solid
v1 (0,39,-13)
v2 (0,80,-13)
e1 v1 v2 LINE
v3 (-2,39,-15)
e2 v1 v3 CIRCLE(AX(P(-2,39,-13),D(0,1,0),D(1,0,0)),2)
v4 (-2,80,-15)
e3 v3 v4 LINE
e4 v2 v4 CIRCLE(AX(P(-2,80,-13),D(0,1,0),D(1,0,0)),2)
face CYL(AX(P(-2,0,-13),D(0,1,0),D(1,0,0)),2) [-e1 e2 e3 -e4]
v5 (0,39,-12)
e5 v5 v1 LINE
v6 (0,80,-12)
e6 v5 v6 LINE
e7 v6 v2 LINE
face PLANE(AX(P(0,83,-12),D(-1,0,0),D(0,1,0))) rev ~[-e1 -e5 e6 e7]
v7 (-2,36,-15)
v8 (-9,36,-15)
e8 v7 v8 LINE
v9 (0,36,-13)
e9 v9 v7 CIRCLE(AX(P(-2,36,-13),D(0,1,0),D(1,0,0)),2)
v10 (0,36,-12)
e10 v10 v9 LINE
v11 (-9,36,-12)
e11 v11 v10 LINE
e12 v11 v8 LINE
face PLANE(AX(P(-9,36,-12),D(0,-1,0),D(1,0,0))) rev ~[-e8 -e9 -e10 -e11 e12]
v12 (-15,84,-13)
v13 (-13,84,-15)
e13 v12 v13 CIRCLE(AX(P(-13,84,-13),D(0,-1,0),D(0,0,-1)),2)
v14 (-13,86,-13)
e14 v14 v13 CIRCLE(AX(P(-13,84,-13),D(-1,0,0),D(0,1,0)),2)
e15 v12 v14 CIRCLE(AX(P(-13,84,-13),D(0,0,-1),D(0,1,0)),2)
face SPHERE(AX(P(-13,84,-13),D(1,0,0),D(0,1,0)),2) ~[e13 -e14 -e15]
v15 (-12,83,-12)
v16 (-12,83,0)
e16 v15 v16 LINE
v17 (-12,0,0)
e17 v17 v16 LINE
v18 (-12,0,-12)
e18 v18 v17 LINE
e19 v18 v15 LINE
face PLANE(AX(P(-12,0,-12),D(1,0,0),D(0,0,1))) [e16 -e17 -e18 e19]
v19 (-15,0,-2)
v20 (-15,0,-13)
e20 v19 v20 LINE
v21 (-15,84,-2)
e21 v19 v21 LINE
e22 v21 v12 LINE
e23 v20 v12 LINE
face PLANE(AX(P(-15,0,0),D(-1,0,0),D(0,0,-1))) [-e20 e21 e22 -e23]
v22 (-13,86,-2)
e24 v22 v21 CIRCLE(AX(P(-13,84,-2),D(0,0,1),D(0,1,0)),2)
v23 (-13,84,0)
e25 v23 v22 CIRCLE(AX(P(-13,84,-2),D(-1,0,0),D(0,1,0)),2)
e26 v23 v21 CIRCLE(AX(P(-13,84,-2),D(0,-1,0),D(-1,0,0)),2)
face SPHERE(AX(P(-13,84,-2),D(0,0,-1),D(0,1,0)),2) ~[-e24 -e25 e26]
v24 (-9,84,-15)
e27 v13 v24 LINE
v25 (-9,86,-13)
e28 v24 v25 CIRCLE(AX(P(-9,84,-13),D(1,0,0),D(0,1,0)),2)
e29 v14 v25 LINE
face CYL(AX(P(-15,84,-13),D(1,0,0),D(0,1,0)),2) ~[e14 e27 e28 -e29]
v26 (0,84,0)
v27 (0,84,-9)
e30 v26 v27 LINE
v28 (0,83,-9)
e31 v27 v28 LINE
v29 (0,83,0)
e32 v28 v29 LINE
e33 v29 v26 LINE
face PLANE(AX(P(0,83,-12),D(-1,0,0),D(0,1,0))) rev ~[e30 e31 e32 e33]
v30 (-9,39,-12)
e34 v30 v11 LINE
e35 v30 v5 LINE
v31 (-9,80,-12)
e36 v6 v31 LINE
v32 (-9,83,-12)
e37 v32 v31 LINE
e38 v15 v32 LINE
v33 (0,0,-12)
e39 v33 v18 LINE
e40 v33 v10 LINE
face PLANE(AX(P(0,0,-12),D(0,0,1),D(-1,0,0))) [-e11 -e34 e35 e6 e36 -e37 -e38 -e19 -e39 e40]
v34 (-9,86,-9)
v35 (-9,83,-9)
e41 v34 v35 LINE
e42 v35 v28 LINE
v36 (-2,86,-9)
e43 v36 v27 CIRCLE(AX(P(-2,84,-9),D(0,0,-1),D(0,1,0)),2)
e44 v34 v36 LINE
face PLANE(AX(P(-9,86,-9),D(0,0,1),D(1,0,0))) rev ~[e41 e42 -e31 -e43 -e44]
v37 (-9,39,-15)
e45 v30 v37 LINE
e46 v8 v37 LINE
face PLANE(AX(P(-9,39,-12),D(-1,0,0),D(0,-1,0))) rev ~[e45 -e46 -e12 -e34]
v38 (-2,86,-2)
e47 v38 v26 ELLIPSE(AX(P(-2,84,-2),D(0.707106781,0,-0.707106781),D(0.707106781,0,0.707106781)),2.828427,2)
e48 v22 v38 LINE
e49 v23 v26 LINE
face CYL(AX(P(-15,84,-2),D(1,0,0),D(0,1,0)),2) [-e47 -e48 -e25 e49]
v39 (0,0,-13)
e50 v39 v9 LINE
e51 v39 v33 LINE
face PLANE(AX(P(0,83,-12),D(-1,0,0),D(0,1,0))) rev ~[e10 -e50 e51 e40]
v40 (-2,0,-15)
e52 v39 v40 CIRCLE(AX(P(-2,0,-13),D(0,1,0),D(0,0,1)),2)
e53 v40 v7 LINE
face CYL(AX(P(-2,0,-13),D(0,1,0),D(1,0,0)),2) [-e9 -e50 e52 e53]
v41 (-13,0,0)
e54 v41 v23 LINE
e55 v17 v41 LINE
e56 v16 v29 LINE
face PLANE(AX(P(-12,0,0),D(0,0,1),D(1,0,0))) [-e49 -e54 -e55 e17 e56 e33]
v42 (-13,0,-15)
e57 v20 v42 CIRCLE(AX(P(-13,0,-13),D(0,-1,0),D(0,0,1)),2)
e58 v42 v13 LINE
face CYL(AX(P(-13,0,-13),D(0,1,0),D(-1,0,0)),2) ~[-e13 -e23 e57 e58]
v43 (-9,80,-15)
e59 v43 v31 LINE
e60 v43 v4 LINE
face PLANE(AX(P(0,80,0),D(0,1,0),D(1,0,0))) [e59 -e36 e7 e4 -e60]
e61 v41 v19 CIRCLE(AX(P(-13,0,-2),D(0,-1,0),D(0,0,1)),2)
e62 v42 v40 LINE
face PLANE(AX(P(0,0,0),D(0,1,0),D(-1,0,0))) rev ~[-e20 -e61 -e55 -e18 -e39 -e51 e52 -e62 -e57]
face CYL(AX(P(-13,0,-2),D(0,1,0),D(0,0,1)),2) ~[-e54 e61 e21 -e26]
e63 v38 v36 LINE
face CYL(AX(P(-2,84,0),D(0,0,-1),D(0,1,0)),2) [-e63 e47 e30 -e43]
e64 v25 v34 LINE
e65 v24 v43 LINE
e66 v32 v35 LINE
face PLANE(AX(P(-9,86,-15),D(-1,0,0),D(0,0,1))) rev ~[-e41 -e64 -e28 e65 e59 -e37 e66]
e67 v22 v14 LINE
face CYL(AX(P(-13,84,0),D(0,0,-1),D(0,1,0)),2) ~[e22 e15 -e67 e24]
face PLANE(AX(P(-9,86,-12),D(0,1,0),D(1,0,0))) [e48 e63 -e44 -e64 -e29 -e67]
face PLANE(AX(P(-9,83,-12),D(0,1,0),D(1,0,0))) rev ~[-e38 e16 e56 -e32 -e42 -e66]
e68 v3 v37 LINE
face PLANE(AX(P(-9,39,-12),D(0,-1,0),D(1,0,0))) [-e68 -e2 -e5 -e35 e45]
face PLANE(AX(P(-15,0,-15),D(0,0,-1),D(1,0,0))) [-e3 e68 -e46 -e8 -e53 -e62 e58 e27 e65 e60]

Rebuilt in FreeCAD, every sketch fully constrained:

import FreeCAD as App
import Part
import Sketcher
from FreeCAD import Vector
Q = App.Units.Quantity


def edges_at(feature, points):
    """Names of the edges that pass closest to the given points."""
    edges = feature.Shape.Edges
    near = lambda p: min(range(len(edges)), key=lambda i: edges[i].distToShape(Part.Vertex(*p))[0])
    return sorted({f"Edge{near(p) + 1}" for p in points})


def add_polygon(sketch, points):
    """Adds a closed chain of lines whose ends are joined by coincident constraints."""
    first, n = sketch.GeometryCount, len(points)
    for a, b in zip(points, points[1:] + points[:1]):
        sketch.addGeometry(Part.LineSegment(App.Vector(*a, 0), App.Vector(*b, 0)), False)
    for i in range(n):
        sketch.addConstraint(Sketcher.Constraint("Coincident", first + i, 2, first + (i + 1) % n, 1))

doc = App.newDocument("Part")
body = doc.addObject("PartDesign::Body", "Body")

# Sketch on XZ plane
sketch1 = body.newObject("Sketcher::SketchObject", "Sketch")
sketch1.AttachmentSupport = (doc.getObject("XZ_Plane"), [""])
sketch1.MapMode = "FlatFace"
add_polygon(sketch1, [(-15, -15), (-15, 0), (-12, 0), (-12, -12), (0, -12), (0, -15)])  # lines 0-5
sketch1.addConstraint(Sketcher.Constraint("Vertical", 0))
sketch1.addConstraint(Sketcher.Constraint("Horizontal", 1))
sketch1.addConstraint(Sketcher.Constraint("Vertical", 2))
sketch1.addConstraint(Sketcher.Constraint("Horizontal", 3))
sketch1.addConstraint(Sketcher.Constraint("Vertical", 4))
sketch1.addConstraint(Sketcher.Constraint("Horizontal", 5))
sketch1.addConstraint(Sketcher.Constraint("PointOnObject", 0, 2, -1))
sketch1.addConstraint(Sketcher.Constraint("PointOnObject", 3, 2, -2))
sketch1.addConstraint(Sketcher.Constraint("Equal", 5, 0))
sketch1.addConstraint(Sketcher.Constraint("Equal", 3, 2))
sketch1.addConstraint(Sketcher.Constraint("DistanceX", 1, 1, 1, 2, Q("3 mm")))
sketch1.addConstraint(Sketcher.Constraint("DistanceX", 3, 1, 3, 2, Q("12 mm")))
pad1 = body.newObject("PartDesign::Pad", "Pad")
pad1.Profile = sketch1
pad1.Length = 86
pad1.Reversed = True

# Sketch on YZ plane
sketch2 = body.newObject("Sketcher::SketchObject", "Sketch001")
sketch2.AttachmentSupport = (doc.getObject("YZ_Plane"), [""])
sketch2.MapMode = "FlatFace"
sketch2.AttachmentOffset = App.Placement(Vector(0, 0, -12), App.Rotation())
add_polygon(sketch2, [(86, 0), (83, 0), (83, -12), (86, -12)])  # lines 0-3
sketch2.addConstraint(Sketcher.Constraint("Horizontal", 0))
sketch2.addConstraint(Sketcher.Constraint("Vertical", 1))
sketch2.addConstraint(Sketcher.Constraint("Horizontal", 2))
sketch2.addConstraint(Sketcher.Constraint("Vertical", 3))
sketch2.addConstraint(Sketcher.Constraint("PointOnObject", 0, 2, -1))
sketch2.addConstraint(Sketcher.Constraint("DistanceX", 0, 2, 0, 1, Q("3 mm")))
sketch2.addConstraint(Sketcher.Constraint("DistanceY", 1, 2, 1, 1, Q("12 mm")))
sketch2.addConstraint(Sketcher.Constraint("DistanceX", -1, 1, 0, 2, Q("83 mm")))
pad2 = body.newObject("PartDesign::Pad", "Pad001")
pad2.Profile = sketch2
pad2.Length = 3

# Sketch on XY plane
sketch3 = body.newObject("Sketcher::SketchObject", "Sketch002")
sketch3.AttachmentSupport = (doc.getObject("XY_Plane"), [""])
sketch3.MapMode = "FlatFace"
sketch3.AttachmentOffset = App.Placement(Vector(0, 0, -12), App.Rotation())
add_polygon(sketch3, [(0, 86), (-9, 86), (-9, 83), (0, 83)])  # lines 0-3
sketch3.addConstraint(Sketcher.Constraint("Horizontal", 0))
sketch3.addConstraint(Sketcher.Constraint("Vertical", 1))
sketch3.addConstraint(Sketcher.Constraint("Horizontal", 2))
sketch3.addConstraint(Sketcher.Constraint("Vertical", 3))
sketch3.addConstraint(Sketcher.Constraint("PointOnObject", 2, 2, -2))
sketch3.addConstraint(Sketcher.Constraint("DistanceX", 0, 2, 0, 1, Q("9 mm")))
sketch3.addConstraint(Sketcher.Constraint("DistanceY", 1, 2, 1, 1, Q("3 mm")))
sketch3.addConstraint(Sketcher.Constraint("DistanceY", -1, 1, 0, 2, Q("86 mm")))
pad3 = body.newObject("PartDesign::Pad", "Pad002")
pad3.Profile = sketch3
pad3.Length = 12
doc.recompute()

fillet = body.newObject("PartDesign::Fillet", "Fillet")
fillet.Base = (pad3, edges_at(pad3, [
    (-7.5, 86, -15),
    (-15, 86, -7.5),
    (-15, 43, -15),
    (0, 43, -15),
    (-7.5, 86, 0),
    (0, 86, -7.5),
    (-15, 43, 0),
]))
fillet.Radius = 2

# Sketch on XZ plane
sketch4 = body.newObject("Sketcher::SketchObject", "Sketch003")
sketch4.AttachmentSupport = (doc.getObject("XZ_Plane"), [""])
sketch4.MapMode = "FlatFace"
sketch4.AttachmentOffset = App.Placement(Vector(0, 0, -86), App.Rotation())
add_polygon(sketch4, [(0, -9), (0, -15), (-9, -15), (-9, -9)])  # lines 0-3
sketch4.addConstraint(Sketcher.Constraint("Vertical", 0))
sketch4.addConstraint(Sketcher.Constraint("Horizontal", 1))
sketch4.addConstraint(Sketcher.Constraint("Vertical", 2))
sketch4.addConstraint(Sketcher.Constraint("Horizontal", 3))
sketch4.addConstraint(Sketcher.Constraint("PointOnObject", 0, 2, -2))
sketch4.addConstraint(Sketcher.Constraint("DistanceX", 1, 2, 1, 1, Q("9 mm")))
sketch4.addConstraint(Sketcher.Constraint("DistanceY", 0, 2, 0, 1, Q("6 mm")))
sketch4.addConstraint(Sketcher.Constraint("DistanceY", 0, 2, -1, 1, Q("15 mm")))
pocket1 = body.newObject("PartDesign::Pocket", "Pocket")
pocket1.Profile = sketch4
pocket1.Length = 6
pocket1.Reversed = True

# Sketch on XY plane
sketch5 = body.newObject("Sketcher::SketchObject", "Sketch004")
sketch5.AttachmentSupport = (doc.getObject("XY_Plane"), [""])
sketch5.MapMode = "FlatFace"
sketch5.AttachmentOffset = App.Placement(Vector(0, 0, -12), App.Rotation())
add_polygon(sketch5, [(0, 39), (-9, 39), (-9, 36), (0, 36)])  # lines 0-3
sketch5.addConstraint(Sketcher.Constraint("Horizontal", 0))
sketch5.addConstraint(Sketcher.Constraint("Vertical", 1))
sketch5.addConstraint(Sketcher.Constraint("Horizontal", 2))
sketch5.addConstraint(Sketcher.Constraint("Vertical", 3))
sketch5.addConstraint(Sketcher.Constraint("PointOnObject", 2, 2, -2))
sketch5.addConstraint(Sketcher.Constraint("DistanceX", 0, 2, 0, 1, Q("9 mm")))
sketch5.addConstraint(Sketcher.Constraint("DistanceY", 1, 2, 1, 1, Q("3 mm")))
sketch5.addConstraint(Sketcher.Constraint("DistanceY", -1, 1, 0, 2, Q("39 mm")))
pocket2 = body.newObject("PartDesign::Pocket", "Pocket001")
pocket2.Profile = sketch5
pocket2.Type = "ThroughAll"

doc.recompute()
